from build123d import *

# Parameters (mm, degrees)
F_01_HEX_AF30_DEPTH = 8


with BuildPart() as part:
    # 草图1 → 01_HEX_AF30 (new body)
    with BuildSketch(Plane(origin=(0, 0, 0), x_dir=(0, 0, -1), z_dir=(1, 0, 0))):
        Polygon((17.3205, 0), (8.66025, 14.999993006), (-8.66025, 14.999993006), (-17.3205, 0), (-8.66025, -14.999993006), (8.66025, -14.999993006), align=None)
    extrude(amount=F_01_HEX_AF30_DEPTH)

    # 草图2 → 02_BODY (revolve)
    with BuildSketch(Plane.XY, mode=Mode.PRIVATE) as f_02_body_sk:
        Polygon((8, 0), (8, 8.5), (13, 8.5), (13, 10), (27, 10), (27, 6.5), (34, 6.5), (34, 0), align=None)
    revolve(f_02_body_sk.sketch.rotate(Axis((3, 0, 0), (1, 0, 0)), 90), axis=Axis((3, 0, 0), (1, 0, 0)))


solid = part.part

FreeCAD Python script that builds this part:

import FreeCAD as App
import Part
import Sketcher
Q = App.Units.Quantity


def add_polygon(sketch, points):
    """Adds a closed chain of lines whose ends are joined by coincident constraints."""
    first, n = sketch.GeometryCount, len(points)
    for a, b in zip(points, points[1:] + points[:1]):
        sketch.addGeometry(Part.LineSegment(App.Vector(*a, 0), App.Vector(*b, 0)), False)
    for i in range(n):
        sketch.addConstraint(Sketcher.Constraint("Coincident", first + i, 2, first + (i + 1) % n, 1))

doc = App.newDocument("Part")
body = doc.addObject("PartDesign::Body", "Body")

# Sketch on YZ plane
sketch1 = doc.addObject("Sketcher::SketchObject", "Sketch")
body.addObject(sketch1)
sketch1.AttachmentSupport = (doc.YZ_Plane, [""])
sketch1.MapMode = "FlatFace"
add_polygon(sketch1, [(0, -17), (15, -9), (15, 9), (0, 17), (-15, 9), (-15, -9)])  # lines 0-5
sketch1.addConstraint([
    Sketcher.Constraint("Vertical", 1),
    Sketcher.Constraint("Vertical", 4),
    Sketcher.Constraint("Symmetric", 0, 2, 3, 2, -1, 1),
    Sketcher.Constraint("Symmetric", 2, 2, 5, 2, -1, 1),
    Sketcher.Constraint("PointOnObject", 2, 2, -2),
    Sketcher.Constraint("Parallel", 2, 5),
    Sketcher.Constraint("Horizontal", 1, 2, 3, 2),
    Sketcher.Constraint("Angle", 0, Q("30 deg")),
    Sketcher.Constraint("DistanceY", 1, 1, 1, 2, Q("17.3205 mm")),
    Sketcher.Constraint("DistanceY", 5, 2, 2, 2, Q("34.641 mm")),
])
pad1 = doc.addObject("PartDesign::Pad", "Pad")
body.addObject(pad1)
pad1.Profile = sketch1
pad1.Length = 8

# Sketch on XY plane
sketch2 = doc.addObject("Sketcher::SketchObject", "Sketch001")
body.addObject(sketch2)
sketch2.AttachmentSupport = (doc.XY_Plane, [""])
sketch2.MapMode = "FlatFace"
add_polygon(sketch2, [(8, 8.5), (8, 0), (34, 0), (34, 6.5), (27, 6.5), (27, 10), (13, 10), (13, 8.5)])  # lines 0-7
sketch2.addConstraint([
    Sketcher.Constraint("Vertical", 0),
    Sketcher.Constraint("Horizontal", 1),
    Sketcher.Constraint("Vertical", 2),
    Sketcher.Constraint("Horizontal", 3),
    Sketcher.Constraint("Vertical", 4),
    Sketcher.Constraint("Horizontal", 5),
    Sketcher.Constraint("Vertical", 6),
    Sketcher.Constraint("Horizontal", 7),
    Sketcher.Constraint("PointOnObject", 0, 2, -1),
    Sketcher.Constraint("DistanceX", 1, 1, 1, 2, Q("26 mm")),
    Sketcher.Constraint("DistanceX", 3, 2, 3, 1, Q("7 mm")),
    Sketcher.Constraint("DistanceX", 5, 2, 5, 1, Q("14 mm")),
    Sketcher.Constraint("DistanceY", 0, 2, 0, 1, Q("8.5 mm")),
    Sketcher.Constraint("DistanceY", 2, 1, 2, 2, Q("6.5 mm")),
    Sketcher.Constraint("DistanceY", 4, 1, 4, 2, Q("3.5 mm")),
    Sketcher.Constraint("DistanceX", -1, 1, 0, 2, Q("8 mm")),
])
revolution = doc.addObject("PartDesign::Revolution", "Revolution")
body.addObject(revolution)
revolution.Profile = sketch2
revolution.ReferenceAxis = (sketch2, ["H_Axis"])
revolution.Angle = 360

doc.recompute()
